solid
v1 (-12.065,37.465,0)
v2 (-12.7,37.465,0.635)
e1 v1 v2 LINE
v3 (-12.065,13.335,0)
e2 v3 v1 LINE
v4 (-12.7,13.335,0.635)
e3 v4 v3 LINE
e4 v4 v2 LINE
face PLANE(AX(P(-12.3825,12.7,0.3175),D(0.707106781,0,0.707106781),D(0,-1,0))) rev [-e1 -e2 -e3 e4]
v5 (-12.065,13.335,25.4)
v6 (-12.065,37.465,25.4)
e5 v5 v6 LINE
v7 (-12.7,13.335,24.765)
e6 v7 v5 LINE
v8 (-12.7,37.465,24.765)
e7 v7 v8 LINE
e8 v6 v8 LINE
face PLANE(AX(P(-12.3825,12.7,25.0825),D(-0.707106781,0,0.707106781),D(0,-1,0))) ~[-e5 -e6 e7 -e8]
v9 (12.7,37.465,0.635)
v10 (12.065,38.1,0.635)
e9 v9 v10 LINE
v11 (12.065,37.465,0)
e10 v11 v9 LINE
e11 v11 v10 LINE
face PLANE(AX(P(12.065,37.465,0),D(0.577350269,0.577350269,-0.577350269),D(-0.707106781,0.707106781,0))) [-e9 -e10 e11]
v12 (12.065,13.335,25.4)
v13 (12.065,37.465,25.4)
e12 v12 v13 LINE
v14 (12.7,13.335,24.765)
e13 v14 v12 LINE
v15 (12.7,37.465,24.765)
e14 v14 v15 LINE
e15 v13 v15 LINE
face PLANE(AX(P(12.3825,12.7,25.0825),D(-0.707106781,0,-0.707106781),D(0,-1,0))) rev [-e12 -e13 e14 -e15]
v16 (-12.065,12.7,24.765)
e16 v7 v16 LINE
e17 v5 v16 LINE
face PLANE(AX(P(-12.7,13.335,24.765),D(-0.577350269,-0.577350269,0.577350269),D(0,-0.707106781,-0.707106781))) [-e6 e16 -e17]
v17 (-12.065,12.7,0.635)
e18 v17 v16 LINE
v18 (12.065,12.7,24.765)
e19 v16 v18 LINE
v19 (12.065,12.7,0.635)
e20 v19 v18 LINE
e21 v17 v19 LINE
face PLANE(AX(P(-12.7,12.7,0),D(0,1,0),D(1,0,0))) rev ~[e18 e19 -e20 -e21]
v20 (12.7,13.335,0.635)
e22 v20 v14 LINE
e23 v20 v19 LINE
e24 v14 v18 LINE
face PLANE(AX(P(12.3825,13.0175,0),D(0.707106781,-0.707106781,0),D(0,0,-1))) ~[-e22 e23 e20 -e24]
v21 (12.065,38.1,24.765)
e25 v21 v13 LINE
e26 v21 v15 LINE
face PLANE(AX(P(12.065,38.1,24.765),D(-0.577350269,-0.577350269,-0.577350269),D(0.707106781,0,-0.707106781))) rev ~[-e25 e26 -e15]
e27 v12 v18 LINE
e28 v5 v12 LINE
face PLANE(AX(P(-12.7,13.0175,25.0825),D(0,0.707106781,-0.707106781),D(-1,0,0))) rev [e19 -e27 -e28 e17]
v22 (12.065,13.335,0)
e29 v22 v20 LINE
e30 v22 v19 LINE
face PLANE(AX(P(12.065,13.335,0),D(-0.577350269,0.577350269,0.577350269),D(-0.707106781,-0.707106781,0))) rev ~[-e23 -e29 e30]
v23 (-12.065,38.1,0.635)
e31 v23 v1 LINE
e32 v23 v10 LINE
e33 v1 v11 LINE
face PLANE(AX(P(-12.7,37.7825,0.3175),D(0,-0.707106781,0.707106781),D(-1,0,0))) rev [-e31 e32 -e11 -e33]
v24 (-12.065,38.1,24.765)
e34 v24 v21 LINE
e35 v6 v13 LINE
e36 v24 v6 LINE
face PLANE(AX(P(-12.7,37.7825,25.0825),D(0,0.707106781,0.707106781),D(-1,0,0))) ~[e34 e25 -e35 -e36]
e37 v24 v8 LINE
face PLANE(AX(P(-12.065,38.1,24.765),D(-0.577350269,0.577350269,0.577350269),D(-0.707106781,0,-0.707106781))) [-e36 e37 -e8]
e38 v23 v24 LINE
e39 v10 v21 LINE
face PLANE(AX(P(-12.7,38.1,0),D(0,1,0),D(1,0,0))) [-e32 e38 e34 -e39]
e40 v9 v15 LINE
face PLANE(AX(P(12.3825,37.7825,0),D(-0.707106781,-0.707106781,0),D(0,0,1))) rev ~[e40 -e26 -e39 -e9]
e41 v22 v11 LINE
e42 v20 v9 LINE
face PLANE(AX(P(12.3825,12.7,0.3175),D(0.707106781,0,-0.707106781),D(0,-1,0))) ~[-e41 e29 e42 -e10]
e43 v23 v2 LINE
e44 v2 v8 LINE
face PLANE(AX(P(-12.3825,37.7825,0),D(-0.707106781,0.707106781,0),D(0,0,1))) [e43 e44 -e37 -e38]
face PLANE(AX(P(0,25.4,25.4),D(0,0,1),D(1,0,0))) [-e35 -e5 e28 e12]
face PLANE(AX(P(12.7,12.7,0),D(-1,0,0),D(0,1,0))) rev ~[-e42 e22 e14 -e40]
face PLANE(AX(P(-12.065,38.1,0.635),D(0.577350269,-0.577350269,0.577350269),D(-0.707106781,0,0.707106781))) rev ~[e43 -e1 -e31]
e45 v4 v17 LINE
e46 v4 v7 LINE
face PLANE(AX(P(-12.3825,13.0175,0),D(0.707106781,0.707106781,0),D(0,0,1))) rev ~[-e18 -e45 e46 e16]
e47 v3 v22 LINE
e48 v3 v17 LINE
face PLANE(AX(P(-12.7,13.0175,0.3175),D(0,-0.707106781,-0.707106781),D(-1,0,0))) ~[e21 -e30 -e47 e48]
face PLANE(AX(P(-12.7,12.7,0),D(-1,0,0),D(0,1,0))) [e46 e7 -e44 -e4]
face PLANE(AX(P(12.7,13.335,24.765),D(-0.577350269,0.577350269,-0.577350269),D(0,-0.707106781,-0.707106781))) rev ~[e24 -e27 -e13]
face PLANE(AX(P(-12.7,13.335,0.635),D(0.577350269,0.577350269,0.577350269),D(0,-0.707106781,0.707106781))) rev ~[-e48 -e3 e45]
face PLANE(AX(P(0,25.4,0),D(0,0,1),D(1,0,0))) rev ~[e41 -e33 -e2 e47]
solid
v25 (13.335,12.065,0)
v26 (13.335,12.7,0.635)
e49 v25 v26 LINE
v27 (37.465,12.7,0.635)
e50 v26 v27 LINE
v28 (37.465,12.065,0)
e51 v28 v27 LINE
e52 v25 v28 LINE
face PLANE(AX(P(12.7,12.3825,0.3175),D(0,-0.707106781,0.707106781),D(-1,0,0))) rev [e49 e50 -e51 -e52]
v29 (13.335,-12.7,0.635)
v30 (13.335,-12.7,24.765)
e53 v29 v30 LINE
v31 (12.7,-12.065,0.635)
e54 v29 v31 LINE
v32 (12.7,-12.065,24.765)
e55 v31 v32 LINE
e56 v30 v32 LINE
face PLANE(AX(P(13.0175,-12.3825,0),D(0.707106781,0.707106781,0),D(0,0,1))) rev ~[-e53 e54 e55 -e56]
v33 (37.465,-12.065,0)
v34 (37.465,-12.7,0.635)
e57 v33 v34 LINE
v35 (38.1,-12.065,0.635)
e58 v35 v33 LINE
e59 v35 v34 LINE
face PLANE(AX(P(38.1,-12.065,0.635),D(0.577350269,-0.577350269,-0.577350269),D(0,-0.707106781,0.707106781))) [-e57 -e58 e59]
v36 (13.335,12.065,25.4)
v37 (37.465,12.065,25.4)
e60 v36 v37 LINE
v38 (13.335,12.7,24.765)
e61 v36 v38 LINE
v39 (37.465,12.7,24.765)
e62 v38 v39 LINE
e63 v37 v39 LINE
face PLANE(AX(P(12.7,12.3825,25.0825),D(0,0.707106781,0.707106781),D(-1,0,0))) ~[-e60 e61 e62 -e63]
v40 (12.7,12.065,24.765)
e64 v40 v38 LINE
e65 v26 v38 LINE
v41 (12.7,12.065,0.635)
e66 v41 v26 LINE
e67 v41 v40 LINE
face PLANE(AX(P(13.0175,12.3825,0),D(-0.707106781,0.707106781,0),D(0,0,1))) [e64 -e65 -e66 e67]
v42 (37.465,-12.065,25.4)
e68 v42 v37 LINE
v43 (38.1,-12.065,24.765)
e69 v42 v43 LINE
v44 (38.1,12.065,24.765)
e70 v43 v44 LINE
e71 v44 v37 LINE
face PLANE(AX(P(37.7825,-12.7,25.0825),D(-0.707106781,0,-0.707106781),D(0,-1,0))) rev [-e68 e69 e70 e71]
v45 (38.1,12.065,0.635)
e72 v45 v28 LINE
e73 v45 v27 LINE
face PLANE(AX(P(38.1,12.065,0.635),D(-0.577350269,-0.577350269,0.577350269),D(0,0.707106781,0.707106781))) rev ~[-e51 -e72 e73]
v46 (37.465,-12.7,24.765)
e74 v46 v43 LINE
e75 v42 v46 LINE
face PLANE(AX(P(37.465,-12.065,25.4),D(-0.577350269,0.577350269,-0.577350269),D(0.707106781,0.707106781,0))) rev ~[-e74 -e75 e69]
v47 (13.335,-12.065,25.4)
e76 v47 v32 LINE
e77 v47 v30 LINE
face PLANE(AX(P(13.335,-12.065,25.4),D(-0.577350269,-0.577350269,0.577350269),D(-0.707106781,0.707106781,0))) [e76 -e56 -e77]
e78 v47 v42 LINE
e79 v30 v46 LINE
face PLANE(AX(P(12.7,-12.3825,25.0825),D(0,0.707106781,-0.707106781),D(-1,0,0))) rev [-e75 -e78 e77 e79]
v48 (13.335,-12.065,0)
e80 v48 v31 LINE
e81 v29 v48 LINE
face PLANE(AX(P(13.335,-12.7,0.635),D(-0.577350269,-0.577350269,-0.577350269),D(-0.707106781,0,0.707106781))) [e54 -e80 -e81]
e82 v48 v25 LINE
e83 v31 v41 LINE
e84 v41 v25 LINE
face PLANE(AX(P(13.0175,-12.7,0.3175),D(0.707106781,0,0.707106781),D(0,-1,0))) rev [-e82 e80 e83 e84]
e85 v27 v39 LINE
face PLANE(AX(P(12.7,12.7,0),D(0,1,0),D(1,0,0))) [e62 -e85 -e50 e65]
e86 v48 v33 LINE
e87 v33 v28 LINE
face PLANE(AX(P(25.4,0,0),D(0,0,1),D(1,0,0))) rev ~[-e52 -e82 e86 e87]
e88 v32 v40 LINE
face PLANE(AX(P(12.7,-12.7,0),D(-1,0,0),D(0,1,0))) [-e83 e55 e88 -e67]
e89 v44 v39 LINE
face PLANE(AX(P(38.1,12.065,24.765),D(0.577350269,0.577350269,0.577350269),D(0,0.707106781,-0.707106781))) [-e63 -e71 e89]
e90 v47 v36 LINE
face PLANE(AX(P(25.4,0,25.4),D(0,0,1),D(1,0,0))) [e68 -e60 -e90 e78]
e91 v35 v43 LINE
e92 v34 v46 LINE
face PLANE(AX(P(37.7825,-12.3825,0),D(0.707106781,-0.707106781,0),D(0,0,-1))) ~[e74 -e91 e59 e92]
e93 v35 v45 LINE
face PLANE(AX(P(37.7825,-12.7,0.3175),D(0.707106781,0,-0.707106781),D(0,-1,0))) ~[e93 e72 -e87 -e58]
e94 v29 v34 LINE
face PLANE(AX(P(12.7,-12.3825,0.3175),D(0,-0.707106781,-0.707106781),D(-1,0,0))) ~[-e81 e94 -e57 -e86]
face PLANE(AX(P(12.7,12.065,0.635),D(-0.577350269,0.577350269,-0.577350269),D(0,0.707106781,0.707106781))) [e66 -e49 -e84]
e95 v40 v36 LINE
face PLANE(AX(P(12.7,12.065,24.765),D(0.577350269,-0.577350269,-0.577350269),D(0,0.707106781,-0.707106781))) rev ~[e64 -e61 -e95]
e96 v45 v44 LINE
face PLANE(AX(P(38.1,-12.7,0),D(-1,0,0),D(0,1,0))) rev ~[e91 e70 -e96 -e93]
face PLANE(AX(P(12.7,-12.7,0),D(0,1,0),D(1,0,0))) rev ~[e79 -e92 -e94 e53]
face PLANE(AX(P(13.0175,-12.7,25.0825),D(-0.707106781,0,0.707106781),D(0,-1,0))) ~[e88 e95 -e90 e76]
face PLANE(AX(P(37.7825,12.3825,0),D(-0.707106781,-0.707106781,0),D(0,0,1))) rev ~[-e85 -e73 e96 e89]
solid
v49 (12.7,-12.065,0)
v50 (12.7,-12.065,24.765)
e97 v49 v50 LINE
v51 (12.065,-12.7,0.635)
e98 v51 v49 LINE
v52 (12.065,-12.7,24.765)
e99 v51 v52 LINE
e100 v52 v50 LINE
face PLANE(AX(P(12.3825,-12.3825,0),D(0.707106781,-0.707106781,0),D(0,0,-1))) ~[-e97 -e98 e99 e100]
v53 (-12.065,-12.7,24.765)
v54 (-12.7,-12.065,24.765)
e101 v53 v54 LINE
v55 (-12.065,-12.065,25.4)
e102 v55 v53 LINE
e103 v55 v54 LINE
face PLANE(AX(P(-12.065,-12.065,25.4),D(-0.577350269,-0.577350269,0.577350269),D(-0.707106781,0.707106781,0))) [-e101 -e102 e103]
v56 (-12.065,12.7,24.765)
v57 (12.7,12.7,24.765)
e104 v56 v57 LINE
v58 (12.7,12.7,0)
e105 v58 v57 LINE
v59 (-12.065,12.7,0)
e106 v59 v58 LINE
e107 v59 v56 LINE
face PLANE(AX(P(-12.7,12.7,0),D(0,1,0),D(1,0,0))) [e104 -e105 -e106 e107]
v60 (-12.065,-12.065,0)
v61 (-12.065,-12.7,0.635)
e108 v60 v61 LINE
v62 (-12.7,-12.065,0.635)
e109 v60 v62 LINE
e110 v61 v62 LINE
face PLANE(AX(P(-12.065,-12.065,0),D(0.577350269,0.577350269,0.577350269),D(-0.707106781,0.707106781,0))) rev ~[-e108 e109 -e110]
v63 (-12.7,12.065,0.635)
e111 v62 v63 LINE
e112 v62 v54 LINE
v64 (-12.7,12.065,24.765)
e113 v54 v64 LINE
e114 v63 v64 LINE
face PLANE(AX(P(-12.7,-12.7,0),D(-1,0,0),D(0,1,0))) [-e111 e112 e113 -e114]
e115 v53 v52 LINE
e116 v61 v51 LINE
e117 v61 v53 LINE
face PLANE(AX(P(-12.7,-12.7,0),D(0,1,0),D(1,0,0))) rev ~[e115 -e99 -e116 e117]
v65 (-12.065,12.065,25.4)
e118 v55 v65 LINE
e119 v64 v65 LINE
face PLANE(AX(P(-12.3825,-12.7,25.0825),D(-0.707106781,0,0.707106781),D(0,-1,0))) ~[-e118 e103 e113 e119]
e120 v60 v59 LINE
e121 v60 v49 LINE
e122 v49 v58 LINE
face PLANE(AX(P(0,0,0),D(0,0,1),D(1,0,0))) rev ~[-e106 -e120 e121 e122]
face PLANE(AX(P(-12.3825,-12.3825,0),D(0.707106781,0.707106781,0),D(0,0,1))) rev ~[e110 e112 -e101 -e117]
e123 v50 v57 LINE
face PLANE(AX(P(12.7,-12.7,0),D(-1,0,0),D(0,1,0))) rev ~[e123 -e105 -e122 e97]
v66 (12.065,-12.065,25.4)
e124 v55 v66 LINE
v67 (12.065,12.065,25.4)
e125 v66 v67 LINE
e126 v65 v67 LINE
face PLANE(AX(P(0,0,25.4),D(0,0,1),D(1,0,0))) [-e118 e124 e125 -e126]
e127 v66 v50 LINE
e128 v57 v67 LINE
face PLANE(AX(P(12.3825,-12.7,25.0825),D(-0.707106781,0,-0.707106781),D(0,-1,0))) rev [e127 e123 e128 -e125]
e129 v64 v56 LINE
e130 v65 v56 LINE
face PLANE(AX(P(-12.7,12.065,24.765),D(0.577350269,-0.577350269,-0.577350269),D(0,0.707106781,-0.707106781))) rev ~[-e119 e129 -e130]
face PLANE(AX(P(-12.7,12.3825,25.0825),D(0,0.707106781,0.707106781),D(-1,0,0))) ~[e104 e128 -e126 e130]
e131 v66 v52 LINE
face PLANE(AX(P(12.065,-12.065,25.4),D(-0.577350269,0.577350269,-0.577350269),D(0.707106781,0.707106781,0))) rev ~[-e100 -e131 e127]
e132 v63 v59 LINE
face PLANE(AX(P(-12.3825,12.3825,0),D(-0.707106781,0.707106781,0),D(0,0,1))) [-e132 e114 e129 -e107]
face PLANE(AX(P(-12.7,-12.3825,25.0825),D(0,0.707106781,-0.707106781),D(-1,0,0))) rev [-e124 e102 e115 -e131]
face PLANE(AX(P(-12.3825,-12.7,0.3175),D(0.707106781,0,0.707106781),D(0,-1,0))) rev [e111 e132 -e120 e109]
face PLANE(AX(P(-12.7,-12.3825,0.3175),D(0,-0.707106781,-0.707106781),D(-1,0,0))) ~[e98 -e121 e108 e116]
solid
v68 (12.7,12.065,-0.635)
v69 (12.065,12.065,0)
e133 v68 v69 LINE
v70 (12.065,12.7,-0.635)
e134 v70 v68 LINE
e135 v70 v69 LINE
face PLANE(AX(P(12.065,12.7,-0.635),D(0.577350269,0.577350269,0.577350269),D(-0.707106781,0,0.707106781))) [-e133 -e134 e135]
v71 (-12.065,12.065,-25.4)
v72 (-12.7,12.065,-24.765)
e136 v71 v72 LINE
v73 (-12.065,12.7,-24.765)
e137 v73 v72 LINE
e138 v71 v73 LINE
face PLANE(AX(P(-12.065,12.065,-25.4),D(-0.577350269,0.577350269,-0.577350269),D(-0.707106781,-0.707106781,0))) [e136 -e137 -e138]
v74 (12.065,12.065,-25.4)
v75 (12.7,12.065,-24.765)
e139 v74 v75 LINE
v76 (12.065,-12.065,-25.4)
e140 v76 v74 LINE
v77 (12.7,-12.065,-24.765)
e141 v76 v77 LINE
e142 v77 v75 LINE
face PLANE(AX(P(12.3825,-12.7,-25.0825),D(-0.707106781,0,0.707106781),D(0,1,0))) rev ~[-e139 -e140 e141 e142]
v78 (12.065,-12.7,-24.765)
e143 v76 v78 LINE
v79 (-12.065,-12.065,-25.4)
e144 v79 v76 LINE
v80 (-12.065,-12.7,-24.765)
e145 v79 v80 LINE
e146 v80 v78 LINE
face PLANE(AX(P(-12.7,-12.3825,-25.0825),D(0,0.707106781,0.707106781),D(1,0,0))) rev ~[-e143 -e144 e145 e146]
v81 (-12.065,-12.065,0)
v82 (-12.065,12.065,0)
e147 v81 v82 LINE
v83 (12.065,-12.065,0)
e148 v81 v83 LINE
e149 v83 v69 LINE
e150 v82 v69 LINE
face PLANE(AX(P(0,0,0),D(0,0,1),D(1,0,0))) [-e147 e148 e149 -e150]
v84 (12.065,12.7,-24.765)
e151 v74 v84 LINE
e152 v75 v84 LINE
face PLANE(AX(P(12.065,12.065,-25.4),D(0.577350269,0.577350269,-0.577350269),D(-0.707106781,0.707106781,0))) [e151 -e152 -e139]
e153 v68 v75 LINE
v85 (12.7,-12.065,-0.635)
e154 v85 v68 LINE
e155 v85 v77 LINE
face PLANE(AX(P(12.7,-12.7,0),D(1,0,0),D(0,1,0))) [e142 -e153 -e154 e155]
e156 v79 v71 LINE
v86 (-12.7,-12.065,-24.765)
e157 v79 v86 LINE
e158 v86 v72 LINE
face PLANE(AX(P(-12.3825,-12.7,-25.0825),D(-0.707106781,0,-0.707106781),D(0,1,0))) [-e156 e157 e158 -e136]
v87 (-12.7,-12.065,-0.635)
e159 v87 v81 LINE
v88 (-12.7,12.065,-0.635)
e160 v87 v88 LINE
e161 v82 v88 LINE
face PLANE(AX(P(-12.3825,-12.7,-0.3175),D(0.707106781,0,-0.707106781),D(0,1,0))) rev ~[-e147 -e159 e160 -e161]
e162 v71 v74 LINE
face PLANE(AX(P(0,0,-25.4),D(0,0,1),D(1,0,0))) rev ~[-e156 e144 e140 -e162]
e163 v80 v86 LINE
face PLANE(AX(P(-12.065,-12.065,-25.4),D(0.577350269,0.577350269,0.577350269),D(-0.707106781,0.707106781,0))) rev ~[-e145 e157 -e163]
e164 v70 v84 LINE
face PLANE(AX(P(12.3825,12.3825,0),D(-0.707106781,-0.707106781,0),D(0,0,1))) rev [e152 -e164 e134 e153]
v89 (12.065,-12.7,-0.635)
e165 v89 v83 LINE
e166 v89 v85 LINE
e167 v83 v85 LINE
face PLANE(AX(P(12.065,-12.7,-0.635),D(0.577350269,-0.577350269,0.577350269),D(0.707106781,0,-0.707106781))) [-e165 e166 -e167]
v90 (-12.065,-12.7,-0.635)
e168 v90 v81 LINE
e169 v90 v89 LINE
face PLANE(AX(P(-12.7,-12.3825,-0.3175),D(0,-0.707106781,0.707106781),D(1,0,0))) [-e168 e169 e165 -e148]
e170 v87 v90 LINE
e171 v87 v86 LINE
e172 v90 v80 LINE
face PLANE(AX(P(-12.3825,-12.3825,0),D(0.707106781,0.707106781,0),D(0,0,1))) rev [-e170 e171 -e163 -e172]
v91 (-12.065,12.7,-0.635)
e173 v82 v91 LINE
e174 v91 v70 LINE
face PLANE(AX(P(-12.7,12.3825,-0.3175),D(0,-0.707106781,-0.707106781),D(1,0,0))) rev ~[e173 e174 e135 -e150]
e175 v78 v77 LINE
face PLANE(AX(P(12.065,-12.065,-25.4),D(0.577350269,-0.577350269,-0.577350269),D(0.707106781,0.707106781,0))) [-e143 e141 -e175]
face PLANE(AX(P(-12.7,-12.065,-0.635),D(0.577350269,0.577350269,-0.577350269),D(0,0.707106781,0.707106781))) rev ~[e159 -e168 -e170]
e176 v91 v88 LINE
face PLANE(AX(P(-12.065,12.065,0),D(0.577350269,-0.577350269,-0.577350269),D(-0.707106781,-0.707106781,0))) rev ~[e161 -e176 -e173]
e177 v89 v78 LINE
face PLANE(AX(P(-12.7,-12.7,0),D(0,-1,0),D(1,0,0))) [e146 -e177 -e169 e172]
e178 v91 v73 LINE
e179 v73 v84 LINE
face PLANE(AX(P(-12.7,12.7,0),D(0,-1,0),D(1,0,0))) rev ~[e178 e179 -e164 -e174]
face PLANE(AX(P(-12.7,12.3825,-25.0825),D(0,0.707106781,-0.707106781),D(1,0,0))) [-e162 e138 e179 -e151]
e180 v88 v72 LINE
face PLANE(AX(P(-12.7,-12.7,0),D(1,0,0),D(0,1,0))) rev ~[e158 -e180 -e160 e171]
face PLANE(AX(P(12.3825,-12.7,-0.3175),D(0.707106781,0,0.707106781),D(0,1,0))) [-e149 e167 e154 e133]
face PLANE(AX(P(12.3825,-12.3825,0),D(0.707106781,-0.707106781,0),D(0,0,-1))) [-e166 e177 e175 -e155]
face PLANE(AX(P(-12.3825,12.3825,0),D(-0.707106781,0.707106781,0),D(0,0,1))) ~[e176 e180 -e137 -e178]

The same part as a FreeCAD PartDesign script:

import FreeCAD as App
import Part
import Sketcher
Q = App.Units.Quantity


def edges_at(feature, points):
    """Names of the edges that pass closest to the given points."""
    edges = feature.Shape.Edges
    near = lambda p: min(range(len(edges)), key=lambda i: edges[i].distToShape(Part.Vertex(*p))[0])
    return sorted({f"Edge{near(p) + 1}" for p in points})

doc = App.newDocument("Part")
body = doc.addObject("PartDesign::Body", "Body")

sketch1 = body.newObject("Sketcher::SketchObject", "Sketch")
sketch1.AttachmentSupport = (doc.getObject("XY_Plane"), [""])
sketch1.MapMode = "FlatFace"
sketch1.addGeometry([
    Part.LineSegment(App.Vector(13, 13, 0), App.Vector(13, -13, 0)),
    Part.LineSegment(App.Vector(13, -13, 0), App.Vector(38, -13, 0)),
    Part.LineSegment(App.Vector(38, -13, 0), App.Vector(38, 13, 0)),
    Part.LineSegment(App.Vector(38, 13, 0), App.Vector(13, 13, 0)),
], False)
sketch1.addConstraint([
    Sketcher.Constraint("Coincident", 0, 2, 1, 1),
    Sketcher.Constraint("Coincident", 1, 2, 2, 1),
    Sketcher.Constraint("Coincident", 2, 2, 3, 1),
    Sketcher.Constraint("Coincident", 3, 2, 0, 1),
    Sketcher.Constraint("Vertical", 0),
    Sketcher.Constraint("Horizontal", 1),
    Sketcher.Constraint("Vertical", 2),
    Sketcher.Constraint("Horizontal", 3),
    Sketcher.Constraint("Equal", 3, 0),
    Sketcher.Constraint("DistanceX", 1, 1, 1, 2, Q("1 in")),
    Sketcher.Constraint("DistanceX", -1, 1, 0, 2, Q("0.5 in")),
    Sketcher.Constraint("DistanceY", 0, 2, -1, 1, Q("0.5 in")),
])
pad1 = body.newObject("PartDesign::Pad", "Pad")
pad1.Profile = sketch1
pad1.Length = Q("1 in")
doc.recompute()

chamfer = body.newObject("PartDesign::Chamfer", "Chamfer")
chamfer.Base = (pad1, ["Edge1"])
chamfer.UseAllEdges = True
chamfer.Size = Q("0.025 in")
body2 = doc.addObject("PartDesign::Body", "Body001")

sketch2 = body2.newObject("Sketcher::SketchObject", "Sketch001")
sketch2.AttachmentSupport = (doc.getObject("XY_Plane001"), [""])
sketch2.MapMode = "FlatFace"
sketch2.addGeometry([
    Part.LineSegment(App.Vector(-13, 13, 0), App.Vector(-13, -13, 0)),
    Part.LineSegment(App.Vector(-13, -13, 0), App.Vector(13, -13, 0)),
    Part.LineSegment(App.Vector(13, -13, 0), App.Vector(13, 13, 0)),
    Part.LineSegment(App.Vector(13, 13, 0), App.Vector(-13, 13, 0)),
], False)
sketch2.addConstraint([
    Sketcher.Constraint("Coincident", 0, 2, 1, 1),
    Sketcher.Constraint("Coincident", 1, 2, 2, 1),
    Sketcher.Constraint("Coincident", 2, 2, 3, 1),
    Sketcher.Constraint("Coincident", 3, 2, 0, 1),
    Sketcher.Constraint("Vertical", 0),
    Sketcher.Constraint("Horizontal", 1),
    Sketcher.Constraint("Vertical", 2),
    Sketcher.Constraint("Horizontal", 3),
    Sketcher.Constraint("Symmetric", 0, 2, 2, 2, -1, 1),
    Sketcher.Constraint("Equal", 3, 0),
    Sketcher.Constraint("DistanceX", 1, 1, 1, 2, Q("1 in")),
])
pad2 = body2.newObject("PartDesign::Pad", "Pad001")
pad2.Profile = sketch2
pad2.Length = Q("1 in")
doc.recompute()

chamfer2 = body2.newObject("PartDesign::Chamfer", "Chamfer001")
chamfer2.Base = (pad2, edges_at(pad2, [
    (12.7, -12.7, 12.7),
    (-12.7, -12.7, 12.7),
    (0, -12.7, 0),
    (0, -12.7, 25.4),
    (12.7, 0, 25.4),
    (0, 12.7, 25.4),
    (-12.7, 0, 25.4),
    (-12.7, 12.7, 12.7),
    (-12.7, 0, 0),
]))
chamfer2.Size = Q("0.025 in")
body3 = doc.addObject("PartDesign::Body", "Body002")

sketch3 = body3.newObject("Sketcher::SketchObject", "Sketch002")
sketch3.AttachmentSupport = (doc.getObject("XY_Plane002"), [""])
sketch3.MapMode = "FlatFace"
sketch3.addGeometry([
    Part.LineSegment(App.Vector(-13, 38, 0), App.Vector(-13, 13, 0)),
    Part.LineSegment(App.Vector(-13, 13, 0), App.Vector(13, 13, 0)),
    Part.LineSegment(App.Vector(13, 13, 0), App.Vector(13, 38, 0)),
    Part.LineSegment(App.Vector(13, 38, 0), App.Vector(-13, 38, 0)),
], False)
sketch3.addConstraint([
    Sketcher.Constraint("Coincident", 0, 2, 1, 1),
    Sketcher.Constraint("Coincident", 1, 2, 2, 1),
    Sketcher.Constraint("Coincident", 2, 2, 3, 1),
    Sketcher.Constraint("Coincident", 3, 2, 0, 1),
    Sketcher.Constraint("Vertical", 0),
    Sketcher.Constraint("Horizontal", 1),
    Sketcher.Constraint("Vertical", 2),
    Sketcher.Constraint("Horizontal", 3),
    Sketcher.Constraint("Equal", 3, 0),
    Sketcher.Constraint("DistanceX", 1, 1, 1, 2, Q("1 in")),
    Sketcher.Constraint("DistanceX", 0, 2, -1, 1, Q("0.5 in")),
    Sketcher.Constraint("DistanceY", -1, 1, 0, 2, Q("0.5 in")),
])
pad3 = body3.newObject("PartDesign::Pad", "Pad002")
pad3.Profile = sketch3
pad3.Length = Q("1 in")
doc.recompute()

chamfer3 = body3.newObject("PartDesign::Chamfer", "Chamfer002")
chamfer3.Base = (pad3, ["Edge1"])
chamfer3.UseAllEdges = True
chamfer3.Size = Q("0.025 in")
body4 = doc.addObject("PartDesign::Body", "Body003")

sketch4 = body4.newObject("Sketcher::SketchObject", "Sketch003")
sketch4.AttachmentSupport = (doc.getObject("XY_Plane003"), [""])
sketch4.MapMode = "FlatFace"
sketch4.addGeometry([
    Part.LineSegment(App.Vector(-13, 13, 0), App.Vector(-13, -13, 0)),
    Part.LineSegment(App.Vector(-13, -13, 0), App.Vector(13, -13, 0)),
    Part.LineSegment(App.Vector(13, -13, 0), App.Vector(13, 13, 0)),
    Part.LineSegment(App.Vector(13, 13, 0), App.Vector(-13, 13, 0)),
], False)
sketch4.addConstraint([
    Sketcher.Constraint("Coincident", 0, 2, 1, 1),
    Sketcher.Constraint("Coincident", 1, 2, 2, 1),
    Sketcher.Constraint("Coincident", 2, 2, 3, 1),
    Sketcher.Constraint("Coincident", 3, 2, 0, 1),
    Sketcher.Constraint("Vertical", 0),
    Sketcher.Constraint("Horizontal", 1),
    Sketcher.Constraint("Vertical", 2),
    Sketcher.Constraint("Horizontal", 3),
    Sketcher.Constraint("Symmetric", 0, 2, 2, 2, -1, 1),
    Sketcher.Constraint("Equal", 3, 0),
    Sketcher.Constraint("DistanceX", 1, 1, 1, 2, Q("1 in")),
])
pad4 = body4.newObject("PartDesign::Pad", "Pad003")
pad4.Profile = sketch4
pad4.Length = Q("1 in")
pad4.Reversed = True
doc.recompute()

chamfer4 = body4.newObject("PartDesign::Chamfer", "Chamfer003")
chamfer4.Base = (pad4, ["Edge1"])
chamfer4.UseAllEdges = True
chamfer4.Size = Q("0.025 in")

doc.recompute()
